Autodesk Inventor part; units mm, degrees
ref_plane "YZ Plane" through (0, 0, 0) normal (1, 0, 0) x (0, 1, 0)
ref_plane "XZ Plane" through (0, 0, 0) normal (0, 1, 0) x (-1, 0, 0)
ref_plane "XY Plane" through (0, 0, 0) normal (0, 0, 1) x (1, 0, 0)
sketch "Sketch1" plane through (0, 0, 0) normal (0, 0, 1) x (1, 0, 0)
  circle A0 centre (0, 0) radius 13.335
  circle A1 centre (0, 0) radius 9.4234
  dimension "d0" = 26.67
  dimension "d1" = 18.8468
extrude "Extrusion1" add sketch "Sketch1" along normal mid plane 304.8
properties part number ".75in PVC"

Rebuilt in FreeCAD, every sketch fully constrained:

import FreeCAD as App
import Part
import Sketcher
Q = App.Units.Quantity

doc = App.newDocument("Part")
body = doc.addObject("PartDesign::Body", "Body")

# Sketch on XY plane
sketch1 = body.newObject("Sketcher::SketchObject", "Sketch")
sketch1.AttachmentSupport = (doc.getObject("XY_Plane"), [""])
sketch1.MapMode = "FlatFace"
sketch1.addGeometry([
    Part.Circle(App.Vector(0, 0, 0), App.Vector(0, 0, 1), 13.335),
    Part.Circle(App.Vector(0, 0, 0), App.Vector(0, 0, 1), 9.4234),
], False)
sketch1.addConstraint([
    Sketcher.Constraint("Coincident", 0, 3, -1, 1),
    Sketcher.Constraint("Coincident", 1, 3, -1, 1),
    Sketcher.Constraint("Diameter", 0, Q("1.05 in")),
    Sketcher.Constraint("Diameter", 1, Q("0.742 in")),
])
pad1 = body.newObject("PartDesign::Pad", "Pad")
pad1.Profile = sketch1
pad1.Length = Q("12 in")
pad1.Midplane = True

doc.recompute()
